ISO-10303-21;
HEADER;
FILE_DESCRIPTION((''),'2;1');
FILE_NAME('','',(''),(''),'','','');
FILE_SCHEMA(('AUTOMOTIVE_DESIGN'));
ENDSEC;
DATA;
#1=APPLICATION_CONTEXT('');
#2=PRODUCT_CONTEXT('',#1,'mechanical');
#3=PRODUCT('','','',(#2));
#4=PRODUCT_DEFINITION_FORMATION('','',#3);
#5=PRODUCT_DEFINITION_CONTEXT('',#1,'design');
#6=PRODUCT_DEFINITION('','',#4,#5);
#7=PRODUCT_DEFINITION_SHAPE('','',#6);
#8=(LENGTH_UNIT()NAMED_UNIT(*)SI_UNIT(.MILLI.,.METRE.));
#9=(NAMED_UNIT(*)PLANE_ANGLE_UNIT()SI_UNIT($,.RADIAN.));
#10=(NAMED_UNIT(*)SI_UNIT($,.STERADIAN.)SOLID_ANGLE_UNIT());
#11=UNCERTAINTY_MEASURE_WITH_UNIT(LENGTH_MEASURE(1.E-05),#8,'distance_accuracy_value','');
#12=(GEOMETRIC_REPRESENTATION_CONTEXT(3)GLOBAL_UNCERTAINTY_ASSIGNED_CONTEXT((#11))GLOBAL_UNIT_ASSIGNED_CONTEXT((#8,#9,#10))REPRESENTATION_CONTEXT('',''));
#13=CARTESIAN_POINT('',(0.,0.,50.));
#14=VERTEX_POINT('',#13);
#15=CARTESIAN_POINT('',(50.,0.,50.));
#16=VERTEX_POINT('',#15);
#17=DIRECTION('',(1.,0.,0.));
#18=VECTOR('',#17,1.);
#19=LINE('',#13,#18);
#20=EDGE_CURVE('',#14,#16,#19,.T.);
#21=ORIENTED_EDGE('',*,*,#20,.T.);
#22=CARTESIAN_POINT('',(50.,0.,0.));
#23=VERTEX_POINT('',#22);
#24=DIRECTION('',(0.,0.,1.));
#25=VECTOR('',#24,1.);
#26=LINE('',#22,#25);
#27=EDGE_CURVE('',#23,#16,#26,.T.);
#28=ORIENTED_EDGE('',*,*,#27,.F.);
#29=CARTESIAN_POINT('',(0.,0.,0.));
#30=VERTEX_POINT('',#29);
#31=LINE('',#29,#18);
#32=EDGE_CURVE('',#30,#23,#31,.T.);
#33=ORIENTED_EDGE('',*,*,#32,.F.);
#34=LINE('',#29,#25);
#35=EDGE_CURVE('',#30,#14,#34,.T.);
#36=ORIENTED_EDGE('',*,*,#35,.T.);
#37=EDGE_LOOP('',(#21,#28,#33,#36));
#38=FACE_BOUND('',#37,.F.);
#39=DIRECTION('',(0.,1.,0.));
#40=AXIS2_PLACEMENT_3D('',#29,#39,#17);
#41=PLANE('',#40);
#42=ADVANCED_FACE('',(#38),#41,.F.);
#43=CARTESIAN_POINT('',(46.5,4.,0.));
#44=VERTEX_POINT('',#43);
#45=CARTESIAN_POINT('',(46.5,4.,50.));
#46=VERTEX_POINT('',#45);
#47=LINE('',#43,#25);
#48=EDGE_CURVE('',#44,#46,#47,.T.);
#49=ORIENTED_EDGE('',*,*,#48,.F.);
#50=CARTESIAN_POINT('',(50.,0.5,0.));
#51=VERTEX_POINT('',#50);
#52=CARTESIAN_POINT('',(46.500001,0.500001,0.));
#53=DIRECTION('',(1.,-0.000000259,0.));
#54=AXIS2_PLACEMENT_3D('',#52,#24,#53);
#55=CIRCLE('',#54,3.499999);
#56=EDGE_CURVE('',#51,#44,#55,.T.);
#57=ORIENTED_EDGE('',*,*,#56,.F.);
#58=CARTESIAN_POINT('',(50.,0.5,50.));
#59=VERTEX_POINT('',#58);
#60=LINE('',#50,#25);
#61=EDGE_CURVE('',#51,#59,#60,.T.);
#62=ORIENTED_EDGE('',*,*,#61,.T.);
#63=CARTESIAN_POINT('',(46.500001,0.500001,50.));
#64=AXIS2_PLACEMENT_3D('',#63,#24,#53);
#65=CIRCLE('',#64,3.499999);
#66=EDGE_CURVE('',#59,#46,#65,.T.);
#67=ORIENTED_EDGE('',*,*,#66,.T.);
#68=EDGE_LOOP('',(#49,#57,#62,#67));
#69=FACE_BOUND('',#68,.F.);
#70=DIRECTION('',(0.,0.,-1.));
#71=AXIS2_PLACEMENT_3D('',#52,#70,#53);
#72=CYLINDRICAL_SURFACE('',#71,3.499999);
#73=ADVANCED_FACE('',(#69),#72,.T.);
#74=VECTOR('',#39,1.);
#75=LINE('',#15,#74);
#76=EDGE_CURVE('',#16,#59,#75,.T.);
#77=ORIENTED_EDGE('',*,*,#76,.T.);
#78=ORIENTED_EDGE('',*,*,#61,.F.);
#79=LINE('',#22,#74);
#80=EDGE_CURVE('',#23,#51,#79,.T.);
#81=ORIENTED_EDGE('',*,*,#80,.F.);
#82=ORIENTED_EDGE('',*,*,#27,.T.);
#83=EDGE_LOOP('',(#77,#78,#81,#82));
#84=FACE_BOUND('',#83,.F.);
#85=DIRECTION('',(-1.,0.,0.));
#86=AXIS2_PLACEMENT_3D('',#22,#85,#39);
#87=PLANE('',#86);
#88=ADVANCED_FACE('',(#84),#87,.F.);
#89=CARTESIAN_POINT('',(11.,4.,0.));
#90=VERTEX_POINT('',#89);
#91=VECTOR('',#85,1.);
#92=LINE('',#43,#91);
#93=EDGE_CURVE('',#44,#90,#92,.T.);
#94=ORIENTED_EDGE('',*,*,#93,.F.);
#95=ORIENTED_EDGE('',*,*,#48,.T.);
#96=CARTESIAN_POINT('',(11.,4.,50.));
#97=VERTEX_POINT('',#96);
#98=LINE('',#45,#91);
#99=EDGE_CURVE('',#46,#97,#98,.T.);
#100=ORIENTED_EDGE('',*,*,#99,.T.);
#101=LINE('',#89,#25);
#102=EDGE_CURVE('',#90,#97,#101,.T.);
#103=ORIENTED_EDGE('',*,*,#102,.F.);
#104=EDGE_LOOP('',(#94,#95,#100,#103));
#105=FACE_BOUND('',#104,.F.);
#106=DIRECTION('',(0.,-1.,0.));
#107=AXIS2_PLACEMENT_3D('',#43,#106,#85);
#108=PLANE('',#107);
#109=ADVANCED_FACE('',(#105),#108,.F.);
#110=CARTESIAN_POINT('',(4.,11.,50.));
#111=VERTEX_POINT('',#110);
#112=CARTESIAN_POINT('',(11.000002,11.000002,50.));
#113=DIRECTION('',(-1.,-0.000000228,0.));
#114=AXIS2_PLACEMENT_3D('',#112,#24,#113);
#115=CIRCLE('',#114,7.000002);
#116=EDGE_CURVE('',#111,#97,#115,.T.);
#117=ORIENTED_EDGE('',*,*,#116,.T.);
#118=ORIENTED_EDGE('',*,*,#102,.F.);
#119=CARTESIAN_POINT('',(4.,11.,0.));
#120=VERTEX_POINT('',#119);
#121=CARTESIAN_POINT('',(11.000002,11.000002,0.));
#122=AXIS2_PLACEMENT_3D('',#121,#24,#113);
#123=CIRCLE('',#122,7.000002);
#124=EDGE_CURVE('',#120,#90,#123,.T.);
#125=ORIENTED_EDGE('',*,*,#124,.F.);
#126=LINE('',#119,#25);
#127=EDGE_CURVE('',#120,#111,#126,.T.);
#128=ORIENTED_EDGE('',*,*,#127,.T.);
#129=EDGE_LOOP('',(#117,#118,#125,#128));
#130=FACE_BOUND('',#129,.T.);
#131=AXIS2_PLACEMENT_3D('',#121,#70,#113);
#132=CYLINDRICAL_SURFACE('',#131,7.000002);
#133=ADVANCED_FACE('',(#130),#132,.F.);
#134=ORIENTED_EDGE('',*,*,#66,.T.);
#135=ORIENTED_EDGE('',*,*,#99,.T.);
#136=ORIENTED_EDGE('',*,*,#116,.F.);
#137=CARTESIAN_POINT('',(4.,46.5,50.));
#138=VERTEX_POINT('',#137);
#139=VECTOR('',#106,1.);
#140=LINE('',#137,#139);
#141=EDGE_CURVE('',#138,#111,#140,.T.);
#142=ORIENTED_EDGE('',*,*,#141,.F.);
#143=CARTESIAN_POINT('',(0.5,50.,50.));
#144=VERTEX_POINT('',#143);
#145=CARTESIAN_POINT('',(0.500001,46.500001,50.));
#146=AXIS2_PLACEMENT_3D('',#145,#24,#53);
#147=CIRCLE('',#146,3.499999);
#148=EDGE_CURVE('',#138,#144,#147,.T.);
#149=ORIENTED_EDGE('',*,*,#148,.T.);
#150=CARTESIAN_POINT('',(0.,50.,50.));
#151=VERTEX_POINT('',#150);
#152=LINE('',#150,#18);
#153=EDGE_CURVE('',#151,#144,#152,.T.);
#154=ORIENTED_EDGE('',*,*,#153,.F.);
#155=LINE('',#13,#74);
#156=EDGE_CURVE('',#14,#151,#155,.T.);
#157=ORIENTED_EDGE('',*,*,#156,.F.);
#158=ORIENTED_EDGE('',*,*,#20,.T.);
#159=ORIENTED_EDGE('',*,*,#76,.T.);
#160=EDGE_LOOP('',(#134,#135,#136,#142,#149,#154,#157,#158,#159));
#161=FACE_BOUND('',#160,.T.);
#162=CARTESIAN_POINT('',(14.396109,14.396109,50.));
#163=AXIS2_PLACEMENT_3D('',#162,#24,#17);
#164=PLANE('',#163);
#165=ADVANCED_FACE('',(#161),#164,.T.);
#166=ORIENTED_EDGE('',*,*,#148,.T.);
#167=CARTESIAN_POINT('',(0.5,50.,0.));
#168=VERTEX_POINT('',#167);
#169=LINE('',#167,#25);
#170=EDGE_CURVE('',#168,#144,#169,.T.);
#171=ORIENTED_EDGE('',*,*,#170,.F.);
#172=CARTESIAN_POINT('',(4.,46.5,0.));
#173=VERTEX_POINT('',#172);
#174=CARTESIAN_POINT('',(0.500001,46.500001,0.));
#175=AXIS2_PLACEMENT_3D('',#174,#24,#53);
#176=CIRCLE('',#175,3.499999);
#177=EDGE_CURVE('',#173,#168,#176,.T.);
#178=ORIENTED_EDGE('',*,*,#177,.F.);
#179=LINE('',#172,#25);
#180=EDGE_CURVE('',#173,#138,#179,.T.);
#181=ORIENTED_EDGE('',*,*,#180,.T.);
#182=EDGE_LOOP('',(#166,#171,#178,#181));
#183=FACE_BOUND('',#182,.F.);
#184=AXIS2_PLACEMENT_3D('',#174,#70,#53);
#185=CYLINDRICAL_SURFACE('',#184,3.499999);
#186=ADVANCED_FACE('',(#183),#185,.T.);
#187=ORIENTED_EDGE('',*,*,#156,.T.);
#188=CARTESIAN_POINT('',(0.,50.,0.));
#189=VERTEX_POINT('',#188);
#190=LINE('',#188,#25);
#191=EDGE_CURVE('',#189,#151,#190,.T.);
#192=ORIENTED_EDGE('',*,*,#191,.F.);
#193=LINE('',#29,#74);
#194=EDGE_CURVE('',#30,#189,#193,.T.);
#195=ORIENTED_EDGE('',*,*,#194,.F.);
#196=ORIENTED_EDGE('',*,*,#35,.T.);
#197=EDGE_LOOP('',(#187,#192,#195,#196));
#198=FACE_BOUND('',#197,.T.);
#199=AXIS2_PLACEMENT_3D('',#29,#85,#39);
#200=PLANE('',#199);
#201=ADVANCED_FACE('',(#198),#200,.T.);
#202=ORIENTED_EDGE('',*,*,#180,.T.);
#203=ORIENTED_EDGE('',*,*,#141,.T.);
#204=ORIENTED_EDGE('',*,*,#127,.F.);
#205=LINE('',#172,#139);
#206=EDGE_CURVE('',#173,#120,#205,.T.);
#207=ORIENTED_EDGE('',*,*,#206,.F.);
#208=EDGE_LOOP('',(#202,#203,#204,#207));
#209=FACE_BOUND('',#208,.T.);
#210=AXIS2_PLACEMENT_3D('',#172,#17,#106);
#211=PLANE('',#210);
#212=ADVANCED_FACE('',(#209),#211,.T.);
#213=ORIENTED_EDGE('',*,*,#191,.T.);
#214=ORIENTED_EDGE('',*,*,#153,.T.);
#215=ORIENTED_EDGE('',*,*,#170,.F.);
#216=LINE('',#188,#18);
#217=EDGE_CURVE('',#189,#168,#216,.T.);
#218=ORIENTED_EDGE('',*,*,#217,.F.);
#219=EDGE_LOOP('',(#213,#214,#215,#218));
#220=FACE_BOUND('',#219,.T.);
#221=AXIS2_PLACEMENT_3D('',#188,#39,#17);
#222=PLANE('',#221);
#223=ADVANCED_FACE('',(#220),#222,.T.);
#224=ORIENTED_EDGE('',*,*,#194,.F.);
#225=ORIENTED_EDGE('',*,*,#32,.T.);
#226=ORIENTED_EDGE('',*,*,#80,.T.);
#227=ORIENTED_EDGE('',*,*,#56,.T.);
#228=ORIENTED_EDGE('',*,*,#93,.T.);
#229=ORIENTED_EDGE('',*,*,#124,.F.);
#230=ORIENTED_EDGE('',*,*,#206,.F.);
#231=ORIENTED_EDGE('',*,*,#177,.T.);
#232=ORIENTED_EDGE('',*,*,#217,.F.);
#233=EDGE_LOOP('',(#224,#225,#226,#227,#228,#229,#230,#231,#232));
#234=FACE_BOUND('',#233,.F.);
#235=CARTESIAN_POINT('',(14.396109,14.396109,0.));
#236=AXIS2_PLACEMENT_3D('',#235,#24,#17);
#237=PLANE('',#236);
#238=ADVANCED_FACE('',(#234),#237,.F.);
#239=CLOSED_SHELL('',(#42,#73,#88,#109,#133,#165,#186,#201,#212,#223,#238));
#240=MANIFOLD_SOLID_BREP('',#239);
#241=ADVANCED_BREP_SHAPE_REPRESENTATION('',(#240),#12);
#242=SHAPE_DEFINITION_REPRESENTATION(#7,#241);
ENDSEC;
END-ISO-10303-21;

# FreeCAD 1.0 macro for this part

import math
import FreeCAD as App
import Part
import Sketcher

doc = App.newDocument("Part")
body = doc.addObject("PartDesign::Body", "Body")

sketch1 = body.newObject("Sketcher::SketchObject", "Sketch")
sketch1.AttachmentSupport = (doc.getObject("XY_Plane"), [""])
sketch1.MapMode = "FlatFace"
sketch1.addGeometry(Part.LineSegment(App.Vector(0, 0, 0), App.Vector(50, 0, 0)), False)
sketch1.addGeometry(Part.LineSegment(App.Vector(50, 0, 0), App.Vector(50, 0.5, 0)), False)
sketch1.addGeometry(Part.ArcOfCircle(Part.Circle(App.Vector(46.5, 0.5, 0), App.Vector(0, 0, 1), 3.5), math.radians(0), math.radians(90)), False)
sketch1.addGeometry(Part.LineSegment(App.Vector(46.5, 4, 0), App.Vector(11, 4, 0)), False)
sketch1.addGeometry(Part.ArcOfCircle(Part.Circle(App.Vector(11, 11, 0), App.Vector(0, 0, 1), 7), math.radians(-180), math.radians(-90)), False)
sketch1.addGeometry(Part.LineSegment(App.Vector(4, 11, 0), App.Vector(4, 46.5, 0)), False)
sketch1.addGeometry(Part.ArcOfCircle(Part.Circle(App.Vector(0.5, 46.5, 0), App.Vector(0, 0, 1), 3.5), math.radians(0), math.radians(90)), False)
sketch1.addGeometry(Part.LineSegment(App.Vector(0.5, 50, 0), App.Vector(0, 50, 0)), False)
sketch1.addGeometry(Part.LineSegment(App.Vector(0, 50, 0), App.Vector(0, 0, 0)), False)
sketch1.addConstraint(Sketcher.Constraint("Coincident", 0, 2, 1, 1))
sketch1.addConstraint(Sketcher.Constraint("Tangent", 1, 2, 2, 1))
sketch1.addConstraint(Sketcher.Constraint("Tangent", 2, 2, 3, 1))
sketch1.addConstraint(Sketcher.Constraint("Tangent", 3, 2, 4, 2))
sketch1.addConstraint(Sketcher.Constraint("Tangent", 4, 1, 5, 1))
sketch1.addConstraint(Sketcher.Constraint("Tangent", 5, 2, 6, 1))
sketch1.addConstraint(Sketcher.Constraint("Tangent", 6, 2, 7, 1))
sketch1.addConstraint(Sketcher.Constraint("Coincident", 7, 2, 8, 1))
sketch1.addConstraint(Sketcher.Constraint("Coincident", 8, 2, 0, 1))
sketch1.addConstraint(Sketcher.Constraint("Horizontal", 0))
sketch1.addConstraint(Sketcher.Constraint("Vertical", 1))
sketch1.addConstraint(Sketcher.Constraint("Horizontal", 3))
sketch1.addConstraint(Sketcher.Constraint("Vertical", 5))
sketch1.addConstraint(Sketcher.Constraint("Horizontal", 7))
sketch1.addConstraint(Sketcher.Constraint("Vertical", 8))
sketch1.addConstraint(Sketcher.Constraint("Coincident", 8, 2, -1, 1))
sketch1.addConstraint(Sketcher.Constraint("Equal", 2, 6))
sketch1.addConstraint(Sketcher.Constraint("Equal", 7, 1))
sketch1.addConstraint(Sketcher.Constraint("Equal", 3, 5))
sketch1.addConstraint(Sketcher.Constraint("Radius", 4, 7.000002))
sketch1.addConstraint(Sketcher.Constraint("Radius", 2, 3.499999))
sketch1.addConstraint(Sketcher.Constraint("DistanceX", 0, 1, 0, 2, 50.0))
sketch1.addConstraint(Sketcher.Constraint("DistanceX", 3, 2, 3, 1, 35.5))
pad1 = body.newObject("PartDesign::Pad", "Pad")
pad1.Profile = sketch1
pad1.Length = 50

doc.recompute()
